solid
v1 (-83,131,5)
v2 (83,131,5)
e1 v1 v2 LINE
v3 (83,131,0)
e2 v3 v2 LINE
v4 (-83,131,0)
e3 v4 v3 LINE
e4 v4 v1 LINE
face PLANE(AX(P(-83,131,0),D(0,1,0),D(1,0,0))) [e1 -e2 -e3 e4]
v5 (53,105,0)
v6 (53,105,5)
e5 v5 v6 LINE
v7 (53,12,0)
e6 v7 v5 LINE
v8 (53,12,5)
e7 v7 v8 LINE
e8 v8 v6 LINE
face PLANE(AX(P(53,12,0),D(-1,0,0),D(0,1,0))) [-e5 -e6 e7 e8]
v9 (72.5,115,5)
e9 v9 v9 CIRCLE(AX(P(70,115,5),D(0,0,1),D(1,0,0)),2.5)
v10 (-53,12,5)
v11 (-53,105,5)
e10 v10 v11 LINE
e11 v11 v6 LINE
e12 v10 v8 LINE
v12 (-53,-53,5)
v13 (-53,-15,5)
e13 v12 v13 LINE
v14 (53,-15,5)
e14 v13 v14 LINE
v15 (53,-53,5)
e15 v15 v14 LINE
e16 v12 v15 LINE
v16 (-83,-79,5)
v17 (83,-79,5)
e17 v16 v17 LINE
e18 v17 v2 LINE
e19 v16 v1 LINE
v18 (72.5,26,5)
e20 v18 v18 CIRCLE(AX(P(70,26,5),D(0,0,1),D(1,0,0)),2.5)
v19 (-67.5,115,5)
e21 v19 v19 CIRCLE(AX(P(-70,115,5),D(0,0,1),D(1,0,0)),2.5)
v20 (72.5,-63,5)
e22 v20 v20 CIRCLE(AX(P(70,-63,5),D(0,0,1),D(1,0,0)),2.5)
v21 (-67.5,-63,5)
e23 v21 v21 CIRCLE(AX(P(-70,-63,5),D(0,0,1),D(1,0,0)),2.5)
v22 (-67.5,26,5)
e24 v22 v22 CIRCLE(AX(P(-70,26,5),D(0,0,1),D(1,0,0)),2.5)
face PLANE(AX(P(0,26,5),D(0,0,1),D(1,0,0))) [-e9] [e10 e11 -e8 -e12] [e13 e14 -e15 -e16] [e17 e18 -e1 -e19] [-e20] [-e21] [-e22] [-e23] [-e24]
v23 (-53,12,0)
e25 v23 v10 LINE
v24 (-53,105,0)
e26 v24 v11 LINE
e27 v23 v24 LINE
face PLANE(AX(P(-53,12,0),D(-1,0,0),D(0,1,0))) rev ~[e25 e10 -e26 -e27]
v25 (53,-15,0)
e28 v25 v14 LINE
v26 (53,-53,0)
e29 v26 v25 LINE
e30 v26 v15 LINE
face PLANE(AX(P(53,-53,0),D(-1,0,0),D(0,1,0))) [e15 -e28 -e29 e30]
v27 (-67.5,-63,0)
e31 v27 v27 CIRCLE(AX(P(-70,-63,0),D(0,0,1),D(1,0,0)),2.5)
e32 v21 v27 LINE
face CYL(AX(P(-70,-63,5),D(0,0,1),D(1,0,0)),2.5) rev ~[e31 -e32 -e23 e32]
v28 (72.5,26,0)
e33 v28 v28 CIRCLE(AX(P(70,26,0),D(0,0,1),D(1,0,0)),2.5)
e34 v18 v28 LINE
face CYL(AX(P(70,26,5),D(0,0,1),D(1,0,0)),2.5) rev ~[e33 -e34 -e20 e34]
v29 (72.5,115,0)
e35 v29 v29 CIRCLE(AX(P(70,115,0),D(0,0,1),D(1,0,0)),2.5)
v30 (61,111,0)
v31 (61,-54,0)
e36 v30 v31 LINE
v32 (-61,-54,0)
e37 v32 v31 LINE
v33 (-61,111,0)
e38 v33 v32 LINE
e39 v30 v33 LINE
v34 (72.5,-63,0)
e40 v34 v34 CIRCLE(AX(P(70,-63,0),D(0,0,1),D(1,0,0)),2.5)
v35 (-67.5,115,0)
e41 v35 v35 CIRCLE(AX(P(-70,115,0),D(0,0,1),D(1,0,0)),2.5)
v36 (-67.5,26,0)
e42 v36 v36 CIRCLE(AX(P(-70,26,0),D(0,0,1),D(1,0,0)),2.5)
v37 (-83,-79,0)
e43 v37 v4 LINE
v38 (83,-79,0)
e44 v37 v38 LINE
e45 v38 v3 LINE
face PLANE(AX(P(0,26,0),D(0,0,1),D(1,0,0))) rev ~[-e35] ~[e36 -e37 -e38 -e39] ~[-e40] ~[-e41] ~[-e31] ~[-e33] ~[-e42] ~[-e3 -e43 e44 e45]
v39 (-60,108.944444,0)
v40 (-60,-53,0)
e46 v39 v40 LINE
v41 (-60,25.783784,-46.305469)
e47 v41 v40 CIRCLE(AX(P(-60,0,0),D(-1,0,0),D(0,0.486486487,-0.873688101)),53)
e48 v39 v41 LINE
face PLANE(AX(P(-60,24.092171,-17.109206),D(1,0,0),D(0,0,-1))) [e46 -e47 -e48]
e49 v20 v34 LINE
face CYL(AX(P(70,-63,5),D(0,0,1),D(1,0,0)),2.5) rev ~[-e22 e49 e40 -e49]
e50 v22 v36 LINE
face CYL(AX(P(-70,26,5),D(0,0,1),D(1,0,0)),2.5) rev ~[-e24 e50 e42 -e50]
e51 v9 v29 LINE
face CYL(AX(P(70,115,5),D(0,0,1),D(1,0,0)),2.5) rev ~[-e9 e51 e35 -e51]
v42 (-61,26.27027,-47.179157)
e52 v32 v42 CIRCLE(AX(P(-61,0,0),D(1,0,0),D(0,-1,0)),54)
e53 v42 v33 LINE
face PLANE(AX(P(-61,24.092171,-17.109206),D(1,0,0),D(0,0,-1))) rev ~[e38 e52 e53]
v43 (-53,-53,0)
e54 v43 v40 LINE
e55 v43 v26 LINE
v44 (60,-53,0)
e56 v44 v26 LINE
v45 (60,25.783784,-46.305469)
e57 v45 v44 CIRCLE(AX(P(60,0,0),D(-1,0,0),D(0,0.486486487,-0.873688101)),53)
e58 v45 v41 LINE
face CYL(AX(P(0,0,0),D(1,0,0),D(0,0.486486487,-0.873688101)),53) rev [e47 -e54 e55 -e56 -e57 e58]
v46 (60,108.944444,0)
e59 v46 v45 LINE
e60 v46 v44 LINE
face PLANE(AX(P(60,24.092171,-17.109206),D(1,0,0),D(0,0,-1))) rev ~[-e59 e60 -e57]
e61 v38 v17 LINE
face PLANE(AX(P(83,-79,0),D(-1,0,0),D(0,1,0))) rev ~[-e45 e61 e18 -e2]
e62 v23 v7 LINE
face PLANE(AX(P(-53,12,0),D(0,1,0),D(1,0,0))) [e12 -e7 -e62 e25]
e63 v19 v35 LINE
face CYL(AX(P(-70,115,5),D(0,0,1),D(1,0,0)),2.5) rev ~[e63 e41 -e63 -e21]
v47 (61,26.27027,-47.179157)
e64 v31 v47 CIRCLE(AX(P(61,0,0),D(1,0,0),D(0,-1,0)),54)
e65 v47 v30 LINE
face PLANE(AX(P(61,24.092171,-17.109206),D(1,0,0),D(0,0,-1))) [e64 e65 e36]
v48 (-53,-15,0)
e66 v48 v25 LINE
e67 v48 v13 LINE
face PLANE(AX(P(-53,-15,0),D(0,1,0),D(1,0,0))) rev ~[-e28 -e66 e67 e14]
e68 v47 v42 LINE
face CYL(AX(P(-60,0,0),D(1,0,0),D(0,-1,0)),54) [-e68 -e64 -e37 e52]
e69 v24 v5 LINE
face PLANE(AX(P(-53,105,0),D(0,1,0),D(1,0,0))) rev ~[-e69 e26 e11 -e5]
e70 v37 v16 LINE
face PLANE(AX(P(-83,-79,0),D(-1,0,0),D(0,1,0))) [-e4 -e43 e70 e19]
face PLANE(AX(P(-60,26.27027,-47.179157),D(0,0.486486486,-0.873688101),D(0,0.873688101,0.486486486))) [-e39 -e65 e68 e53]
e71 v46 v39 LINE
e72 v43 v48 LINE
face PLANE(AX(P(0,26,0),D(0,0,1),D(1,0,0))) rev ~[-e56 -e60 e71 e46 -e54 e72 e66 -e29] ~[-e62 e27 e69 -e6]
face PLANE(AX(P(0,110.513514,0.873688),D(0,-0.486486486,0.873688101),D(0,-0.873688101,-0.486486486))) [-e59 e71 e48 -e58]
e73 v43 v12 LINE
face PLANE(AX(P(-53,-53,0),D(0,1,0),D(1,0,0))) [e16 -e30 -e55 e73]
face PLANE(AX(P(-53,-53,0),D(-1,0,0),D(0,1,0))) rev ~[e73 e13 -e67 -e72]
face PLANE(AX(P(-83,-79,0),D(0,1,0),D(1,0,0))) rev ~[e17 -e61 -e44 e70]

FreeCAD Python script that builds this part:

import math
import FreeCAD as App
import Part
import Sketcher
from FreeCAD import Vector


def add_polygon(sketch, points):
    """Adds a closed chain of lines whose ends are joined by coincident constraints."""
    first, n = sketch.GeometryCount, len(points)
    for a, b in zip(points, points[1:] + points[:1]):
        sketch.addGeometry(Part.LineSegment(App.Vector(*a, 0), App.Vector(*b, 0)), False)
    for i in range(n):
        sketch.addConstraint(Sketcher.Constraint("Coincident", first + i, 2, first + (i + 1) % n, 1))

doc = App.newDocument("Part")
body = doc.addObject("PartDesign::Body", "Body")

sketch1 = body.newObject("Sketcher::SketchObject", "Sketch")
sketch1.AttachmentSupport = (doc.getObject("YZ_Plane"), [""])
sketch1.MapMode = "FlatFace"
sketch1.addGeometry([
    Part.ArcOfCircle(Part.Circle(Vector(0, 0, 0), Vector(0, 0, 1), 54), math.radians(-180), math.radians(-61)),
    Part.LineSegment(Vector(26.3, -47.2, 0), Vector(111, 0, 0)),
    Part.LineSegment(Vector(111, 0, 0), Vector(110.5, 0.9, 0)),
    Part.LineSegment(Vector(110.5, 0.9, 0), Vector(25.8, -46.3, 0)),
    Part.ArcOfCircle(Part.Circle(Vector(0, 0, 0), Vector(0, 0, 1), 53), math.radians(180), math.radians(299)),
    Part.LineSegment(Vector(-53, 0, 0), Vector(-54, 0, 0)),
], False)
sketch1.addConstraint([
    Sketcher.Constraint("Tangent", 0, 2, 1, 1),
    Sketcher.Constraint("Coincident", 1, 2, 2, 1),
    Sketcher.Constraint("Coincident", 2, 2, 3, 1),
    Sketcher.Constraint("Tangent", 3, 2, 4, 2),
    Sketcher.Constraint("Coincident", 4, 1, 5, 1),
    Sketcher.Constraint("Coincident", 5, 2, 0, 1),
    Sketcher.Constraint("Horizontal", 5),
    Sketcher.Constraint("Coincident", 0, 3, -1, 1),
    Sketcher.Constraint("Coincident", 4, 3, -1, 1),
    Sketcher.Constraint("PointOnObject", 1, 2, -1),
    Sketcher.Constraint("PointOnObject", 4, 1, -1),
    Sketcher.Constraint("Perpendicular", 1, 2),
    Sketcher.Constraint("Perpendicular", 2, 3),
    Sketcher.Constraint("Radius", 0, 54.0),
    Sketcher.Constraint("Radius", 4, 53.0),
    Sketcher.Constraint("DistanceX", -1, 1, 1, 2, 111.0),
])
pad1 = body.newObject("PartDesign::Pad", "Pad")
pad1.Profile = sketch1
pad1.Length = 120
pad1.Midplane = True

sketch2 = body.newObject("Sketcher::SketchObject", "Sketch001")
sketch2.AttachmentSupport = (doc.getObject("YZ_Plane"), [""])
sketch2.MapMode = "FlatFace"
sketch2.AttachmentOffset = App.Placement(Vector(0, 0, 61), App.Rotation())
sketch2.addGeometry([
    Part.LineSegment(Vector(111, 0, 0), Vector(-54, 0, 0)),
    Part.ArcOfCircle(Part.Circle(Vector(0, 0, 0), Vector(0, 0, 1), 54), math.radians(-180), math.radians(-61)),
    Part.LineSegment(Vector(26, -47, 0), Vector(111, 0, 0)),
], False)
sketch2.addConstraint([
    Sketcher.Constraint("Coincident", 0, 2, 1, 1),
    Sketcher.Constraint("Tangent", 1, 2, 2, 1),
    Sketcher.Constraint("Coincident", 2, 2, 0, 1),
    Sketcher.Constraint("Horizontal", 0),
    Sketcher.Constraint("Coincident", 1, 3, -1, 1),
    Sketcher.Constraint("PointOnObject", 0, 2, -1),
    Sketcher.Constraint("Radius", 1, 54.0),
    Sketcher.Constraint("DistanceX", 0, 2, 0, 1, 165.0),
])
pad2 = body.newObject("PartDesign::Pad", "Pad001")
pad2.Profile = sketch2
pad2.Length = 1
pad2.Reversed = True

sketch3 = body.newObject("Sketcher::SketchObject", "Sketch002")
sketch3.AttachmentSupport = (doc.getObject("YZ_Plane"), [""])
sketch3.MapMode = "FlatFace"
sketch3.AttachmentOffset = App.Placement(Vector(0, 0, -60), App.Rotation())
sketch3.addGeometry([
    Part.LineSegment(Vector(-54, 0, 0), Vector(111, 0, 0)),
    Part.LineSegment(Vector(111, 0, 0), Vector(26, -47, 0)),
    Part.ArcOfCircle(Part.Circle(Vector(0, 0, 0), Vector(0, 0, 1), 54), math.radians(-180), math.radians(-61)),
], False)
sketch3.addConstraint([
    Sketcher.Constraint("Coincident", 0, 2, 1, 1),
    Sketcher.Constraint("Tangent", 1, 2, 2, 2),
    Sketcher.Constraint("Coincident", 2, 1, 0, 1),
    Sketcher.Constraint("Horizontal", 0),
    Sketcher.Constraint("Coincident", 2, 3, -1, 1),
    Sketcher.Constraint("PointOnObject", 0, 2, -1),
    Sketcher.Constraint("Radius", 2, 54.0),
    Sketcher.Constraint("DistanceX", 0, 1, 0, 2, 165.0),
])
pad3 = body.newObject("PartDesign::Pad", "Pad002")
pad3.Profile = sketch3
pad3.Length = 1
pad3.Reversed = True

sketch4 = body.newObject("Sketcher::SketchObject", "Sketch003")
sketch4.AttachmentSupport = (doc.getObject("XY_Plane"), [""])
sketch4.MapMode = "FlatFace"
add_polygon(sketch4, [(-83, 131), (-83, -79), (83, -79), (83, 131)])
add_polygon(sketch4, [(53, -53), (-53, -53), (-53, -15), (53, -15)])
add_polygon(sketch4, [(53, 12), (-53, 12), (-53, 105), (53, 105)])
sketch4.addConstraint([
    Sketcher.Constraint("Vertical", 0),
    Sketcher.Constraint("Horizontal", 1),
    Sketcher.Constraint("Vertical", 2),
    Sketcher.Constraint("Horizontal", 3),
    Sketcher.Constraint("Horizontal", 4),
    Sketcher.Constraint("Vertical", 5),
    Sketcher.Constraint("Horizontal", 6),
    Sketcher.Constraint("Vertical", 7),
    Sketcher.Constraint("Horizontal", 8),
    Sketcher.Constraint("Vertical", 9),
    Sketcher.Constraint("Horizontal", 10),
    Sketcher.Constraint("Vertical", 11),
    Sketcher.Constraint("Vertical", 5, 2, 8, 2),
    Sketcher.Constraint("Vertical", 7, 2, 10, 2),
    Sketcher.Constraint("DistanceX", 1, 1, 1, 2, 166.0),
    Sketcher.Constraint("DistanceX", 4, 2, 4, 1, 106.0),
    Sketcher.Constraint("DistanceY", 0, 2, 0, 1, 210.0),
    Sketcher.Constraint("DistanceY", 5, 1, 5, 2, 38.0),
    Sketcher.Constraint("DistanceY", 9, 1, 9, 2, 93.0),
    Sketcher.Constraint("DistanceX", 0, 2, -1, 1, 83.0),
    Sketcher.Constraint("DistanceY", 0, 2, -1, 1, 79.0),
    Sketcher.Constraint("DistanceX", 4, 2, -1, 1, 53.0),
    Sketcher.Constraint("DistanceY", 4, 2, -1, 1, 53.0),
    Sketcher.Constraint("DistanceY", -1, 1, 8, 2, 12.0),
])
pad4 = body.newObject("PartDesign::Pad", "Pad003")
pad4.Profile = sketch4
pad4.Length = 5

sketch5 = body.newObject("Sketcher::SketchObject", "Sketch004")
sketch5.AttachmentSupport = (doc.getObject("XY_Plane"), [""])
sketch5.MapMode = "FlatFace"
sketch5.AttachmentOffset = App.Placement(Vector(0, 0, 5), App.Rotation())
sketch5.addGeometry([
    Part.Circle(Vector(-70, 115, 0), Vector(0, 0, 1), 2.5),
    Part.Circle(Vector(-70, 26, 0), Vector(0, 0, 1), 2.5),
    Part.Circle(Vector(-70, -63, 0), Vector(0, 0, 1), 2.5),
    Part.Circle(Vector(70, -63, 0), Vector(0, 0, 1), 2.5),
    Part.Circle(Vector(70, 26, 0), Vector(0, 0, 1), 2.5),
    Part.Circle(Vector(70, 115, 0), Vector(0, 0, 1), 2.5),
], False)
sketch5.addConstraint([
    Sketcher.Constraint("Equal", 0, 1),
    Sketcher.Constraint("Equal", 1, 2),
    Sketcher.Constraint("Equal", 2, 3),
    Sketcher.Constraint("Equal", 3, 4),
    Sketcher.Constraint("Equal", 4, 5),
    Sketcher.Constraint("Symmetric", 2, 3, 3, 3, -2),
    Sketcher.Constraint("Symmetric", 1, 3, 4, 3, -2),
    Sketcher.Constraint("Symmetric", 0, 3, 5, 3, -2),
    Sketcher.Constraint("Vertical", 0, 3, 1, 3),
    Sketcher.Constraint("Vertical", 1, 3, 2, 3),
    Sketcher.Constraint("Diameter", 0, 5.0),
    Sketcher.Constraint("DistanceX", 0, 3, -1, 1, 70.0),
    Sketcher.Constraint("DistanceY", -1, 1, 0, 3, 115.0),
    Sketcher.Constraint("DistanceY", -1, 1, 1, 3, 26.0),
    Sketcher.Constraint("DistanceY", 2, 3, -1, 1, 63.0),
])
pocket1 = body.newObject("PartDesign::Pocket", "Pocket")
pocket1.Profile = sketch5
pocket1.Type = "ThroughAll"

doc.recompute()
